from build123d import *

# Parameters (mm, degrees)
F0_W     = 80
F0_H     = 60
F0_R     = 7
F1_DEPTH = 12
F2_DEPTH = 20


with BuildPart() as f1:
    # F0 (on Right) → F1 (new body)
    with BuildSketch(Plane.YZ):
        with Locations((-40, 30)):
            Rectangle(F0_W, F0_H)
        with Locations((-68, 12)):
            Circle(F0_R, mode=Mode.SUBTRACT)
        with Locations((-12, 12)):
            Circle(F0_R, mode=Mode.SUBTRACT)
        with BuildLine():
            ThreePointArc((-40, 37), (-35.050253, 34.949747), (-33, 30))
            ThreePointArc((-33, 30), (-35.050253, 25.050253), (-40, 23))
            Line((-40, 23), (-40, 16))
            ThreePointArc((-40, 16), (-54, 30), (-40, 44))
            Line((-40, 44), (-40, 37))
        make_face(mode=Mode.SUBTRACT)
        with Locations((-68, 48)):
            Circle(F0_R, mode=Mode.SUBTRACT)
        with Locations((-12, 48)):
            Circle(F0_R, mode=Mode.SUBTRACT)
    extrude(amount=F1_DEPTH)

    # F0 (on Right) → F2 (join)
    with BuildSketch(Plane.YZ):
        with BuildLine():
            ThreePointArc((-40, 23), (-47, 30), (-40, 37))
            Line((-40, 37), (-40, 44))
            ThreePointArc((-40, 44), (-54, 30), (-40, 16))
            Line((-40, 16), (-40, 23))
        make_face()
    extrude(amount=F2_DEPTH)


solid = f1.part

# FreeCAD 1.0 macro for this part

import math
import FreeCAD as App
import Part
import Sketcher

V = App.Vector


def add_polygon(sketch, points):
    """Adds a closed chain of lines whose ends are joined by coincident constraints."""
    first, n = sketch.GeometryCount, len(points)
    for a, b in zip(points, points[1:] + points[:1]):
        sketch.addGeometry(Part.LineSegment(App.Vector(*a, 0), App.Vector(*b, 0)), False)
    for i in range(n):
        sketch.addConstraint(Sketcher.Constraint("Coincident", first + i, 2, first + (i + 1) % n, 1))

doc = App.newDocument("Part")
body = doc.addObject("PartDesign::Body", "Body")

sketch1 = body.newObject("Sketcher::SketchObject", "Sketch")
sketch1.AttachmentSupport = (doc.getObject("YZ_Plane"), [""])
sketch1.MapMode = "FlatFace"
add_polygon(sketch1, [(-80, 60), (-80, 0), (0, 0), (0, 60)])
sketch1.addGeometry(Part.Circle(V(-68, 12, 0), V(0, 0, 1), 7), False)
sketch1.addGeometry(Part.Circle(V(-12, 12, 0), V(0, 0, 1), 7), False)
sketch1.addGeometry(Part.LineSegment(V(-40, 44, 0), V(-40, 37, 0)), False)
sketch1.addGeometry(Part.ArcOfCircle(Part.Circle(V(-40, 30, 0), V(0, 0, 1), 7), math.radians(0), math.radians(90)), False)
sketch1.addGeometry(Part.ArcOfCircle(Part.Circle(V(-40, 30, 0), V(0, 0, 1), 7), math.radians(-90), math.radians(0)), False)
sketch1.addGeometry(Part.LineSegment(V(-40, 23, 0), V(-40, 16, 0)), False)
sketch1.addGeometry(Part.ArcOfCircle(Part.Circle(V(-40, 30, 0), V(0, 0, 1), 14), math.radians(90), math.radians(270)), False)
sketch1.addGeometry(Part.Circle(V(-68, 48, 0), V(0, 0, 1), 7), False)
sketch1.addGeometry(Part.Circle(V(-12, 48, 0), V(0, 0, 1), 7), False)
sketch1.addConstraint(Sketcher.Constraint("Coincident", 6, 2, 7, 2))
sketch1.addConstraint(Sketcher.Constraint("Tangent", 7, 1, 8, 2))
sketch1.addConstraint(Sketcher.Constraint("Coincident", 8, 1, 9, 1))
sketch1.addConstraint(Sketcher.Constraint("Coincident", 9, 2, 10, 2))
sketch1.addConstraint(Sketcher.Constraint("Coincident", 10, 1, 6, 1))
sketch1.addConstraint(Sketcher.Constraint("Vertical", 0))
sketch1.addConstraint(Sketcher.Constraint("Horizontal", 1))
sketch1.addConstraint(Sketcher.Constraint("Vertical", 2))
sketch1.addConstraint(Sketcher.Constraint("Horizontal", 3))
sketch1.addConstraint(Sketcher.Constraint("Vertical", 6))
sketch1.addConstraint(Sketcher.Constraint("Vertical", 9))
sketch1.addConstraint(Sketcher.Constraint("Coincident", 1, 2, -1, 1))
sketch1.addConstraint(Sketcher.Constraint("Coincident", 10, 3, 7, 3))
sketch1.addConstraint(Sketcher.Constraint("Equal", 4, 5))
sketch1.addConstraint(Sketcher.Constraint("Equal", 5, 7))
sketch1.addConstraint(Sketcher.Constraint("Equal", 7, 8))
sketch1.addConstraint(Sketcher.Constraint("Equal", 8, 11))
sketch1.addConstraint(Sketcher.Constraint("Equal", 11, 12))
sketch1.addConstraint(Sketcher.Constraint("Horizontal", 4, 3, 5, 3))
sketch1.addConstraint(Sketcher.Constraint("Horizontal", 11, 3, 12, 3))
sketch1.addConstraint(Sketcher.Constraint("Horizontal", 10, 3, 7, 1))
sketch1.addConstraint(Sketcher.Constraint("Vertical", 4, 3, 11, 3))
sketch1.addConstraint(Sketcher.Constraint("Vertical", 5, 3, 12, 3))
sketch1.addConstraint(Sketcher.Constraint("Vertical", 10, 3, 6, 2))
sketch1.addConstraint(Sketcher.Constraint("Vertical", 6, 2, 8, 1))
sketch1.addConstraint(Sketcher.Constraint("Diameter", 4, 14.0))
sketch1.addConstraint(Sketcher.Constraint("Radius", 10, 14.0))
sketch1.addConstraint(Sketcher.Constraint("DistanceX", 1, 1, 1, 2, 80.0))
sketch1.addConstraint(Sketcher.Constraint("DistanceY", 0, 2, 0, 1, 60.0))
sketch1.addConstraint(Sketcher.Constraint("DistanceX", 4, 3, -1, 1, 68.0))
sketch1.addConstraint(Sketcher.Constraint("DistanceY", -1, 1, 4, 3, 12.0))
sketch1.addConstraint(Sketcher.Constraint("DistanceX", 5, 3, -1, 1, 12.0))
sketch1.addConstraint(Sketcher.Constraint("DistanceX", 7, 3, -1, 1, 40.000002))
sketch1.addConstraint(Sketcher.Constraint("DistanceY", -1, 1, 7, 3, 29.999998))
sketch1.addConstraint(Sketcher.Constraint("DistanceY", -1, 1, 11, 3, 48.0))
pad1 = body.newObject("PartDesign::Pad", "Pad")
pad1.Profile = sketch1
pad1.Length = 12

sketch2 = body.newObject("Sketcher::SketchObject", "Sketch001")
sketch2.AttachmentSupport = (doc.getObject("YZ_Plane"), [""])
sketch2.MapMode = "FlatFace"
sketch2.addGeometry(Part.ArcOfCircle(Part.Circle(V(-40, 30, 0), V(0, 0, 1), 7), math.radians(90), math.radians(270)), False)
sketch2.addGeometry(Part.LineSegment(V(-40, 37, 0), V(-40, 44, 0)), False)
sketch2.addGeometry(Part.ArcOfCircle(Part.Circle(V(-40, 30, 0), V(0, 0, 1), 14), math.radians(90), math.radians(270)), False)
sketch2.addGeometry(Part.LineSegment(V(-40, 16, 0), V(-40, 23, 0)), False)
sketch2.addConstraint(Sketcher.Constraint("Coincident", 0, 1, 1, 1))
sketch2.addConstraint(Sketcher.Constraint("Coincident", 1, 2, 2, 1))
sketch2.addConstraint(Sketcher.Constraint("Coincident", 2, 2, 3, 1))
sketch2.addConstraint(Sketcher.Constraint("Coincident", 3, 2, 0, 2))
sketch2.addConstraint(Sketcher.Constraint("Vertical", 1))
sketch2.addConstraint(Sketcher.Constraint("Vertical", 3))
sketch2.addConstraint(Sketcher.Constraint("Coincident", 2, 3, 0, 3))
sketch2.addConstraint(Sketcher.Constraint("Vertical", 2, 3, 0, 1))
sketch2.addConstraint(Sketcher.Constraint("Vertical", 1, 2, 2, 2))
sketch2.addConstraint(Sketcher.Constraint("Radius", 0, 7.0))
sketch2.addConstraint(Sketcher.Constraint("Radius", 2, 14.0))
sketch2.addConstraint(Sketcher.Constraint("DistanceX", 0, 3, -1, 1, 40.0))
sketch2.addConstraint(Sketcher.Constraint("DistanceY", -1, 1, 0, 3, 30.0))
pad2 = body.newObject("PartDesign::Pad", "Pad001")
pad2.Profile = sketch2
pad2.Length = 20

doc.recompute()
